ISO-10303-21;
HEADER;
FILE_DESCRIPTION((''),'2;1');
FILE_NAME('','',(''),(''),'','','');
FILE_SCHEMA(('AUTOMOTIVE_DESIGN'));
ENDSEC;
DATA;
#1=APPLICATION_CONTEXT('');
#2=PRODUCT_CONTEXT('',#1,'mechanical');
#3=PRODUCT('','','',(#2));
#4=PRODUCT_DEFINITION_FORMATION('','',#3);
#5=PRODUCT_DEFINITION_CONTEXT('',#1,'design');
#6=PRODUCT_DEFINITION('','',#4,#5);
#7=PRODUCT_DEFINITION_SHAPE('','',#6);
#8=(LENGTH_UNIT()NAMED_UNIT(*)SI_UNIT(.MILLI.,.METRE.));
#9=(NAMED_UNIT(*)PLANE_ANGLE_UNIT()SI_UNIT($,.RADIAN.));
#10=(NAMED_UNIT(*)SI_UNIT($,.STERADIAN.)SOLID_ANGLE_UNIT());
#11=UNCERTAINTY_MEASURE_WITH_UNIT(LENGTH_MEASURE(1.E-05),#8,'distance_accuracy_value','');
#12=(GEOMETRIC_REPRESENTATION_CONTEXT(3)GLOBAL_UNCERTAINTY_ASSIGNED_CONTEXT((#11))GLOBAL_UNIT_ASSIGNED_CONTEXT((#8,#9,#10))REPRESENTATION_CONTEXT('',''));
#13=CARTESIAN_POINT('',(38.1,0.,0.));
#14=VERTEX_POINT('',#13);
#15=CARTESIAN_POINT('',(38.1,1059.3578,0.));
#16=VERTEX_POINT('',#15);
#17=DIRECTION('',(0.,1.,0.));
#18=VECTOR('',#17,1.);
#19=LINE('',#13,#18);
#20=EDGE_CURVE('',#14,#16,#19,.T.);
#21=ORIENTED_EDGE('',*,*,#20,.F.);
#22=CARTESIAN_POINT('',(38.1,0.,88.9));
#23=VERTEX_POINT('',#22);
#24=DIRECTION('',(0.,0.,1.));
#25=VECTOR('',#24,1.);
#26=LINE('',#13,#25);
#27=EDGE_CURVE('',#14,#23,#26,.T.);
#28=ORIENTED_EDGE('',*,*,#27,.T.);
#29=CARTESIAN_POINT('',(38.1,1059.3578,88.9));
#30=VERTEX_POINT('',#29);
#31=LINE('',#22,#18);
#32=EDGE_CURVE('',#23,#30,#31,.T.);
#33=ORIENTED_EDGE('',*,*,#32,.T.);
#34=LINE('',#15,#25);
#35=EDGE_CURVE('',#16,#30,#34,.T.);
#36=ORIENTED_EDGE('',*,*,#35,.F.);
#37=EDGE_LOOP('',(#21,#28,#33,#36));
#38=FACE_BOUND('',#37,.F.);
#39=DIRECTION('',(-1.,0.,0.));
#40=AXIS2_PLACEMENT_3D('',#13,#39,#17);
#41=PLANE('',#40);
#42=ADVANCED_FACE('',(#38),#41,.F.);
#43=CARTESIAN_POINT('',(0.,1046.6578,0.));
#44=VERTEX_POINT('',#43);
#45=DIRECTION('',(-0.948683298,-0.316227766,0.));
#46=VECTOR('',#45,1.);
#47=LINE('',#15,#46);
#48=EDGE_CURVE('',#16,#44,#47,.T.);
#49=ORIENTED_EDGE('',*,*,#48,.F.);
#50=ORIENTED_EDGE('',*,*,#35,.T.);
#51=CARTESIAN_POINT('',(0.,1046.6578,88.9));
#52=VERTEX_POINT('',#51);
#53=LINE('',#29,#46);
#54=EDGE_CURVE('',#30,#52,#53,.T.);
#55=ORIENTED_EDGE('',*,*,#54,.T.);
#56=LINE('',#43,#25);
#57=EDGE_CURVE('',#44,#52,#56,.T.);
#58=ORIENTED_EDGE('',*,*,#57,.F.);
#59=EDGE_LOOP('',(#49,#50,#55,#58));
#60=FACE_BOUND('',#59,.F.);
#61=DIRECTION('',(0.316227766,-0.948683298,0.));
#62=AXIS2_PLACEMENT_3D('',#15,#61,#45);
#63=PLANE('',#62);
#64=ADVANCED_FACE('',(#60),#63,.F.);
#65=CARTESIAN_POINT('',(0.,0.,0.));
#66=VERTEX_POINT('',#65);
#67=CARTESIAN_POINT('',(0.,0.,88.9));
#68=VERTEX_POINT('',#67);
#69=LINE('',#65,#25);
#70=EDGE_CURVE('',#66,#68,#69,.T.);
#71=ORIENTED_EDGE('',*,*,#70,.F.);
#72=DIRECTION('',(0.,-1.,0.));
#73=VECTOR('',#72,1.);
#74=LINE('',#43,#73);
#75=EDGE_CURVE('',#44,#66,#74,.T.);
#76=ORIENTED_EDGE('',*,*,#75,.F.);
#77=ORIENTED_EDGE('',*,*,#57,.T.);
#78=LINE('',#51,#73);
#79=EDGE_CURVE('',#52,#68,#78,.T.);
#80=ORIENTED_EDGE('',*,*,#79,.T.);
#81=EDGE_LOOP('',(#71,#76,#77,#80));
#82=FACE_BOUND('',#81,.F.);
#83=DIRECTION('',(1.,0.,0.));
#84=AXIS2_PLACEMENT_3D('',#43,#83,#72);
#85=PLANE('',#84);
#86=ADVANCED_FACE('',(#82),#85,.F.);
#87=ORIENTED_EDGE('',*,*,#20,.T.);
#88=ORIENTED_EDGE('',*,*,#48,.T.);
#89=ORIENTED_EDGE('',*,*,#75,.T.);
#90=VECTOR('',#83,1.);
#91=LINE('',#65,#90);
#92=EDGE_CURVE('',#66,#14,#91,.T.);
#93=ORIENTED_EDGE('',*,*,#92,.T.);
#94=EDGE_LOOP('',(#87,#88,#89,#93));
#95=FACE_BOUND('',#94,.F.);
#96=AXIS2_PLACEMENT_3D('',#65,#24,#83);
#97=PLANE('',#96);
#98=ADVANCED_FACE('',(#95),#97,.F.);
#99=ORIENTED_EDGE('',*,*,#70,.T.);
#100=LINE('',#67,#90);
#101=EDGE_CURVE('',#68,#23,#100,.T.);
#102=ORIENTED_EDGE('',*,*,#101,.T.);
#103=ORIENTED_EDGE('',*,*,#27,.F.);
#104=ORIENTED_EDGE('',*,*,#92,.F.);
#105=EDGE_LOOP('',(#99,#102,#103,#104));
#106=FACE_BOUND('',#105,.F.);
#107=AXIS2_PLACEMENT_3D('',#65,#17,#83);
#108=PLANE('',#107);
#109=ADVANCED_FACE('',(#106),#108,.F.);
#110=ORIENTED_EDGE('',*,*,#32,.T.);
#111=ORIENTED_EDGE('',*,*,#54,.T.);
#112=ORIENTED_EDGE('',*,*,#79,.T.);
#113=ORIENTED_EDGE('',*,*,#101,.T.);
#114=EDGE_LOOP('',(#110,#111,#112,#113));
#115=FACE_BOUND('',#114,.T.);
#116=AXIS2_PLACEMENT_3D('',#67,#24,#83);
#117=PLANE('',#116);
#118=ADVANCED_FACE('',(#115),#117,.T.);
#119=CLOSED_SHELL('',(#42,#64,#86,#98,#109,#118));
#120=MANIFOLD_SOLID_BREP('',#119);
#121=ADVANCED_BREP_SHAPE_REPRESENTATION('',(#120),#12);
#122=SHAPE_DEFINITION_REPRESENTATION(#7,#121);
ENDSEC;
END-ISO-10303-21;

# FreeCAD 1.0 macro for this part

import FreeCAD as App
import Part
import Sketcher
from FreeCAD import Vector
Q = App.Units.Quantity

doc = App.newDocument("Part")
body = doc.addObject("PartDesign::Body", "Body")

# Sketch on XY plane
sketch1 = body.newObject("Sketcher::SketchObject", "Sketch")
sketch1.AttachmentSupport = (doc.getObject("XY_Plane"), [""])
sketch1.MapMode = "FlatFace"
sketch1.addGeometry(Part.LineSegment(Vector(0, 1046.6578, 0), Vector(0, 0, 0)), False)
sketch1.addGeometry(Part.LineSegment(Vector(0, 0, 0), Vector(38.1, 0, 0)), False)
sketch1.addGeometry(Part.LineSegment(Vector(38.1, 0, 0), Vector(38.1, 1059.3578, 0)), False)
sketch1.addGeometry(Part.LineSegment(Vector(38.1, 1059.3578, 0), Vector(0, 1046.6578, 0)), False)
sketch1.addConstraint(Sketcher.Constraint("Coincident", 0, 2, 1, 1))
sketch1.addConstraint(Sketcher.Constraint("Coincident", 1, 2, 2, 1))
sketch1.addConstraint(Sketcher.Constraint("Coincident", 2, 2, 3, 1))
sketch1.addConstraint(Sketcher.Constraint("Coincident", 3, 2, 0, 1))
sketch1.addConstraint(Sketcher.Constraint("Vertical", 0))
sketch1.addConstraint(Sketcher.Constraint("Horizontal", 1))
sketch1.addConstraint(Sketcher.Constraint("Vertical", 2))
sketch1.addConstraint(Sketcher.Constraint("Coincident", 0, 2, -1, 1))
sketch1.addConstraint(Sketcher.Constraint("DistanceX", 1, 1, 1, 2, Q("1.5 in")))
sketch1.addConstraint(Sketcher.Constraint("DistanceY", 0, 2, 0, 1, Q("41.207 in")))
sketch1.addConstraint(Sketcher.Constraint("DistanceY", 2, 1, 2, 2, Q("41.707 in")))
pad1 = body.newObject("PartDesign::Pad", "Pad")
pad1.Profile = sketch1
pad1.Length = Q("3.5 in")

doc.recompute()
